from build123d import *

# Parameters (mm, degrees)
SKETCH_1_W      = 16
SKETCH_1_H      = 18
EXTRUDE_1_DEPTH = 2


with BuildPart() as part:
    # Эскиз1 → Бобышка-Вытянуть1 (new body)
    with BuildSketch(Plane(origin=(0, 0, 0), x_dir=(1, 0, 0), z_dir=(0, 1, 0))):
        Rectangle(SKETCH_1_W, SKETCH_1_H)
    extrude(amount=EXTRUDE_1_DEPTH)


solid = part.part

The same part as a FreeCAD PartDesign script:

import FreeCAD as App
import Part
import Sketcher

V = App.Vector


def add_polygon(sketch, points):
    """Adds a closed chain of lines whose ends are joined by coincident constraints."""
    first, n = sketch.GeometryCount, len(points)
    for a, b in zip(points, points[1:] + points[:1]):
        sketch.addGeometry(Part.LineSegment(App.Vector(*a, 0), App.Vector(*b, 0)), False)
    for i in range(n):
        sketch.addConstraint(Sketcher.Constraint("Coincident", first + i, 2, first + (i + 1) % n, 1))

doc = App.newDocument("Part")
body = doc.addObject("PartDesign::Body", "Body")

# Sketch on XZ plane
sketch1 = doc.addObject("Sketcher::SketchObject", "Sketch")
body.addObject(sketch1)
sketch1.AttachmentSupport = (doc.XZ_Plane, [""])
sketch1.MapMode = "FlatFace"
add_polygon(sketch1, [(-8, -9), (-8, 9), (8, 9), (8, -9)])  # lines 0-3
sketch1.addConstraint([
    Sketcher.Constraint("Vertical", 0),
    Sketcher.Constraint("Horizontal", 1),
    Sketcher.Constraint("Vertical", 2),
    Sketcher.Constraint("Horizontal", 3),
    Sketcher.Constraint("Symmetric", 0, 2, 2, 2, -1, 1),
    Sketcher.Constraint("DistanceX", 1, 1, 1, 2, 16.0),
    Sketcher.Constraint("DistanceY", 0, 1, 0, 2, 18.0),
])
pad1 = doc.addObject("PartDesign::Pad", "Pad")
body.addObject(pad1)
pad1.Profile = sketch1
pad1.Length = 2
pad1.Reversed = True

doc.recompute()
